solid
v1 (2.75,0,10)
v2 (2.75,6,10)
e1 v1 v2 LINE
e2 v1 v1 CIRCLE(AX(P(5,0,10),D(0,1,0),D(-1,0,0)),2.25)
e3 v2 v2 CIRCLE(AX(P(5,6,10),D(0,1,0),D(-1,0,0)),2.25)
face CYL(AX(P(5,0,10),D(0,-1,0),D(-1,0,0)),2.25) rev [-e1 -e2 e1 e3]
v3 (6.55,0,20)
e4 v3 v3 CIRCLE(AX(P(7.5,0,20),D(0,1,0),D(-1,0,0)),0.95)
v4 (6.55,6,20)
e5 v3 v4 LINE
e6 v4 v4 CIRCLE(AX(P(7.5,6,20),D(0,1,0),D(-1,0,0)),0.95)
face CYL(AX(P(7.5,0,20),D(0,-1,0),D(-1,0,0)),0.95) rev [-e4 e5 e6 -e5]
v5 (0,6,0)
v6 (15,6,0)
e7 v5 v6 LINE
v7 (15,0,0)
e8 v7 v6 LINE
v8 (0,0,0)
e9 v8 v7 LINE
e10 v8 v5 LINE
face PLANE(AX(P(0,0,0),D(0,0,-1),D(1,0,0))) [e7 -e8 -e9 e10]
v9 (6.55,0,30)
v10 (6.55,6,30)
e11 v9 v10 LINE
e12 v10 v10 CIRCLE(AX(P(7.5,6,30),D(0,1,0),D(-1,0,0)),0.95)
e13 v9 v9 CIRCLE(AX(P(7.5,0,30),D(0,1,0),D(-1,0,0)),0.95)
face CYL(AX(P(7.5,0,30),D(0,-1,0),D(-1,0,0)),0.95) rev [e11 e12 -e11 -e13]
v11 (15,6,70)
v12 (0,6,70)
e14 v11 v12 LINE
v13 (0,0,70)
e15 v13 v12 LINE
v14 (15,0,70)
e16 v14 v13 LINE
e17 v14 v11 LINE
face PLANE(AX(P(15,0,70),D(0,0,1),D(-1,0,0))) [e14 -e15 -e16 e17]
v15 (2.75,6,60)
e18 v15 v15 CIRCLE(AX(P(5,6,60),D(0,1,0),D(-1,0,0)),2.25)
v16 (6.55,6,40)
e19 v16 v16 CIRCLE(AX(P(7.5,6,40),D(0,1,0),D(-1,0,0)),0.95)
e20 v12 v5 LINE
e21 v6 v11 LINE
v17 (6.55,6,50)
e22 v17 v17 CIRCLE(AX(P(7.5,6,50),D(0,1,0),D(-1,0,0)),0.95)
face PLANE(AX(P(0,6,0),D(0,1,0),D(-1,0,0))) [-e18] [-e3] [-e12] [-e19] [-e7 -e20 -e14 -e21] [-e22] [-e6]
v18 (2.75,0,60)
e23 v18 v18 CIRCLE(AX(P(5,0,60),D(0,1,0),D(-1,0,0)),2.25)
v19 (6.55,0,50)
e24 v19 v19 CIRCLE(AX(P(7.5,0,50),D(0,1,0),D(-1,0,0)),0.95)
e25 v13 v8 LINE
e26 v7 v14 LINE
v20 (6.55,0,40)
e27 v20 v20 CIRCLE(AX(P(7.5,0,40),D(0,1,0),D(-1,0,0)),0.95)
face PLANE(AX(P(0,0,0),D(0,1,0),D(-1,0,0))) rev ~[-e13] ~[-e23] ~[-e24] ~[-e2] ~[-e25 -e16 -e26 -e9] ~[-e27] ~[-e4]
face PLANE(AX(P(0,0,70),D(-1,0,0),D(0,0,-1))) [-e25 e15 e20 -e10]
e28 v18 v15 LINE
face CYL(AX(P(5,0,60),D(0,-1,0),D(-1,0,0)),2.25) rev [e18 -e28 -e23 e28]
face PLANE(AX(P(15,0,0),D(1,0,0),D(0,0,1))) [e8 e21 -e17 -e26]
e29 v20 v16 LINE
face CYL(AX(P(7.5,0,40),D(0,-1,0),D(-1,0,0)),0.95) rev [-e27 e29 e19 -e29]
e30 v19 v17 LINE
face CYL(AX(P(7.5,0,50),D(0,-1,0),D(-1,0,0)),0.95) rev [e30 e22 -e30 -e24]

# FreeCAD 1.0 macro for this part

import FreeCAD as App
import Part
import Sketcher

V = App.Vector

doc = App.newDocument("Part")
params = doc.addObject("Spreadsheet::Sheet", "Params")
for row, (alias, value) in enumerate([
    ("sketch1_diameter", "4.5 mm"),
    ("sketch1_diameter2", "1.9 mm"),
    ("sketch1_width", "15 mm"),
    ("pad1_length", "6 mm"),
], start=1):
    params.set(f"A{row}", alias)
    params.set(f"B{row}", "=" + value)
    params.setAlias(f"B{row}", alias)

body = doc.addObject("PartDesign::Body", "Body")

sketch1 = body.newObject("Sketcher::SketchObject", "Sketch")
sketch1.AttachmentSupport = (doc.getObject("XZ_Plane"), [""])
sketch1.MapMode = "FlatFace"
sketch1.addGeometry([
    Part.LineSegment(V(15, 0, 0), V(0, 0, 0)),
    Part.LineSegment(V(0, 0, 0), V(0, 70, 0)),
    Part.LineSegment(V(0, 70, 0), V(15, 70, 0)),
    Part.LineSegment(V(15, 70, 0), V(15, 0, 0)),
    Part.Circle(V(5, 10, 0), V(0, 0, 1), 2.25),
    Part.Circle(V(7.5, 20, 0), V(0, 0, 1), 0.95),
    Part.Circle(V(7.5, 30, 0), V(0, 0, 1), 0.95),
    Part.Circle(V(7.5, 40, 0), V(0, 0, 1), 0.95),
    Part.Circle(V(7.5, 50, 0), V(0, 0, 1), 0.95),
    Part.Circle(V(5, 60, 0), V(0, 0, 1), 2.25),
], False)
sketch1.addConstraint([
    Sketcher.Constraint("Coincident", 0, 2, 1, 1),
    Sketcher.Constraint("Coincident", 1, 2, 2, 1),
    Sketcher.Constraint("Coincident", 2, 2, 3, 1),
    Sketcher.Constraint("Coincident", 3, 2, 0, 1),
    Sketcher.Constraint("Horizontal", 0),
    Sketcher.Constraint("Vertical", 1),
    Sketcher.Constraint("Horizontal", 2),
    Sketcher.Constraint("Vertical", 3),
    Sketcher.Constraint("Coincident", 0, 2, -1, 1),
    Sketcher.Constraint("Equal", 5, 6),
    Sketcher.Constraint("Equal", 6, 7),
    Sketcher.Constraint("Equal", 7, 8),
    Sketcher.Constraint("Equal", 4, 9),
    Sketcher.Constraint("Vertical", 5, 3, 6, 3),
    Sketcher.Constraint("Vertical", 6, 3, 7, 3),
    Sketcher.Constraint("Vertical", 7, 3, 8, 3),
    Sketcher.Constraint("Vertical", 4, 3, 9, 3),
    Sketcher.Constraint("Diameter", 4, 4.5),
    Sketcher.Constraint("Diameter", 5, 1.9),
    Sketcher.Constraint("DistanceX", 0, 2, 0, 1, 15.0),
    Sketcher.Constraint("DistanceX", -1, 1, 4, 3, 5.0),
    Sketcher.Constraint("DistanceY", -1, 1, 4, 3, 10.0),
    Sketcher.Constraint("DistanceY", -1, 1, 8, 3, 50.0),
    Sketcher.Constraint("DistanceY", 4, 3, 5, 3, 10.0),
    Sketcher.Constraint("DistanceY", 5, 3, 6, 3, 10.0),
    Sketcher.Constraint("DistanceY", 6, 3, 7, 3, 10.0),
    Sketcher.Constraint("DistanceY", 8, 3, 9, 3, 10.0),
    Sketcher.Constraint("DistanceY", 9, 3, 1, 2, 10.0),
    Sketcher.Constraint("DistanceX", -1, 1, 5, 3, 7.5),
])
sketch1.setExpression("Constraints[17]", "Params.sketch1_diameter")
sketch1.setExpression("Constraints[18]", "Params.sketch1_diameter2")
sketch1.setExpression("Constraints[19]", "Params.sketch1_width")
pad1 = body.newObject("PartDesign::Pad", "Pad")
pad1.Profile = sketch1
pad1.setExpression("Length", "Params.pad1_length")
pad1.Reversed = True

doc.recompute()
